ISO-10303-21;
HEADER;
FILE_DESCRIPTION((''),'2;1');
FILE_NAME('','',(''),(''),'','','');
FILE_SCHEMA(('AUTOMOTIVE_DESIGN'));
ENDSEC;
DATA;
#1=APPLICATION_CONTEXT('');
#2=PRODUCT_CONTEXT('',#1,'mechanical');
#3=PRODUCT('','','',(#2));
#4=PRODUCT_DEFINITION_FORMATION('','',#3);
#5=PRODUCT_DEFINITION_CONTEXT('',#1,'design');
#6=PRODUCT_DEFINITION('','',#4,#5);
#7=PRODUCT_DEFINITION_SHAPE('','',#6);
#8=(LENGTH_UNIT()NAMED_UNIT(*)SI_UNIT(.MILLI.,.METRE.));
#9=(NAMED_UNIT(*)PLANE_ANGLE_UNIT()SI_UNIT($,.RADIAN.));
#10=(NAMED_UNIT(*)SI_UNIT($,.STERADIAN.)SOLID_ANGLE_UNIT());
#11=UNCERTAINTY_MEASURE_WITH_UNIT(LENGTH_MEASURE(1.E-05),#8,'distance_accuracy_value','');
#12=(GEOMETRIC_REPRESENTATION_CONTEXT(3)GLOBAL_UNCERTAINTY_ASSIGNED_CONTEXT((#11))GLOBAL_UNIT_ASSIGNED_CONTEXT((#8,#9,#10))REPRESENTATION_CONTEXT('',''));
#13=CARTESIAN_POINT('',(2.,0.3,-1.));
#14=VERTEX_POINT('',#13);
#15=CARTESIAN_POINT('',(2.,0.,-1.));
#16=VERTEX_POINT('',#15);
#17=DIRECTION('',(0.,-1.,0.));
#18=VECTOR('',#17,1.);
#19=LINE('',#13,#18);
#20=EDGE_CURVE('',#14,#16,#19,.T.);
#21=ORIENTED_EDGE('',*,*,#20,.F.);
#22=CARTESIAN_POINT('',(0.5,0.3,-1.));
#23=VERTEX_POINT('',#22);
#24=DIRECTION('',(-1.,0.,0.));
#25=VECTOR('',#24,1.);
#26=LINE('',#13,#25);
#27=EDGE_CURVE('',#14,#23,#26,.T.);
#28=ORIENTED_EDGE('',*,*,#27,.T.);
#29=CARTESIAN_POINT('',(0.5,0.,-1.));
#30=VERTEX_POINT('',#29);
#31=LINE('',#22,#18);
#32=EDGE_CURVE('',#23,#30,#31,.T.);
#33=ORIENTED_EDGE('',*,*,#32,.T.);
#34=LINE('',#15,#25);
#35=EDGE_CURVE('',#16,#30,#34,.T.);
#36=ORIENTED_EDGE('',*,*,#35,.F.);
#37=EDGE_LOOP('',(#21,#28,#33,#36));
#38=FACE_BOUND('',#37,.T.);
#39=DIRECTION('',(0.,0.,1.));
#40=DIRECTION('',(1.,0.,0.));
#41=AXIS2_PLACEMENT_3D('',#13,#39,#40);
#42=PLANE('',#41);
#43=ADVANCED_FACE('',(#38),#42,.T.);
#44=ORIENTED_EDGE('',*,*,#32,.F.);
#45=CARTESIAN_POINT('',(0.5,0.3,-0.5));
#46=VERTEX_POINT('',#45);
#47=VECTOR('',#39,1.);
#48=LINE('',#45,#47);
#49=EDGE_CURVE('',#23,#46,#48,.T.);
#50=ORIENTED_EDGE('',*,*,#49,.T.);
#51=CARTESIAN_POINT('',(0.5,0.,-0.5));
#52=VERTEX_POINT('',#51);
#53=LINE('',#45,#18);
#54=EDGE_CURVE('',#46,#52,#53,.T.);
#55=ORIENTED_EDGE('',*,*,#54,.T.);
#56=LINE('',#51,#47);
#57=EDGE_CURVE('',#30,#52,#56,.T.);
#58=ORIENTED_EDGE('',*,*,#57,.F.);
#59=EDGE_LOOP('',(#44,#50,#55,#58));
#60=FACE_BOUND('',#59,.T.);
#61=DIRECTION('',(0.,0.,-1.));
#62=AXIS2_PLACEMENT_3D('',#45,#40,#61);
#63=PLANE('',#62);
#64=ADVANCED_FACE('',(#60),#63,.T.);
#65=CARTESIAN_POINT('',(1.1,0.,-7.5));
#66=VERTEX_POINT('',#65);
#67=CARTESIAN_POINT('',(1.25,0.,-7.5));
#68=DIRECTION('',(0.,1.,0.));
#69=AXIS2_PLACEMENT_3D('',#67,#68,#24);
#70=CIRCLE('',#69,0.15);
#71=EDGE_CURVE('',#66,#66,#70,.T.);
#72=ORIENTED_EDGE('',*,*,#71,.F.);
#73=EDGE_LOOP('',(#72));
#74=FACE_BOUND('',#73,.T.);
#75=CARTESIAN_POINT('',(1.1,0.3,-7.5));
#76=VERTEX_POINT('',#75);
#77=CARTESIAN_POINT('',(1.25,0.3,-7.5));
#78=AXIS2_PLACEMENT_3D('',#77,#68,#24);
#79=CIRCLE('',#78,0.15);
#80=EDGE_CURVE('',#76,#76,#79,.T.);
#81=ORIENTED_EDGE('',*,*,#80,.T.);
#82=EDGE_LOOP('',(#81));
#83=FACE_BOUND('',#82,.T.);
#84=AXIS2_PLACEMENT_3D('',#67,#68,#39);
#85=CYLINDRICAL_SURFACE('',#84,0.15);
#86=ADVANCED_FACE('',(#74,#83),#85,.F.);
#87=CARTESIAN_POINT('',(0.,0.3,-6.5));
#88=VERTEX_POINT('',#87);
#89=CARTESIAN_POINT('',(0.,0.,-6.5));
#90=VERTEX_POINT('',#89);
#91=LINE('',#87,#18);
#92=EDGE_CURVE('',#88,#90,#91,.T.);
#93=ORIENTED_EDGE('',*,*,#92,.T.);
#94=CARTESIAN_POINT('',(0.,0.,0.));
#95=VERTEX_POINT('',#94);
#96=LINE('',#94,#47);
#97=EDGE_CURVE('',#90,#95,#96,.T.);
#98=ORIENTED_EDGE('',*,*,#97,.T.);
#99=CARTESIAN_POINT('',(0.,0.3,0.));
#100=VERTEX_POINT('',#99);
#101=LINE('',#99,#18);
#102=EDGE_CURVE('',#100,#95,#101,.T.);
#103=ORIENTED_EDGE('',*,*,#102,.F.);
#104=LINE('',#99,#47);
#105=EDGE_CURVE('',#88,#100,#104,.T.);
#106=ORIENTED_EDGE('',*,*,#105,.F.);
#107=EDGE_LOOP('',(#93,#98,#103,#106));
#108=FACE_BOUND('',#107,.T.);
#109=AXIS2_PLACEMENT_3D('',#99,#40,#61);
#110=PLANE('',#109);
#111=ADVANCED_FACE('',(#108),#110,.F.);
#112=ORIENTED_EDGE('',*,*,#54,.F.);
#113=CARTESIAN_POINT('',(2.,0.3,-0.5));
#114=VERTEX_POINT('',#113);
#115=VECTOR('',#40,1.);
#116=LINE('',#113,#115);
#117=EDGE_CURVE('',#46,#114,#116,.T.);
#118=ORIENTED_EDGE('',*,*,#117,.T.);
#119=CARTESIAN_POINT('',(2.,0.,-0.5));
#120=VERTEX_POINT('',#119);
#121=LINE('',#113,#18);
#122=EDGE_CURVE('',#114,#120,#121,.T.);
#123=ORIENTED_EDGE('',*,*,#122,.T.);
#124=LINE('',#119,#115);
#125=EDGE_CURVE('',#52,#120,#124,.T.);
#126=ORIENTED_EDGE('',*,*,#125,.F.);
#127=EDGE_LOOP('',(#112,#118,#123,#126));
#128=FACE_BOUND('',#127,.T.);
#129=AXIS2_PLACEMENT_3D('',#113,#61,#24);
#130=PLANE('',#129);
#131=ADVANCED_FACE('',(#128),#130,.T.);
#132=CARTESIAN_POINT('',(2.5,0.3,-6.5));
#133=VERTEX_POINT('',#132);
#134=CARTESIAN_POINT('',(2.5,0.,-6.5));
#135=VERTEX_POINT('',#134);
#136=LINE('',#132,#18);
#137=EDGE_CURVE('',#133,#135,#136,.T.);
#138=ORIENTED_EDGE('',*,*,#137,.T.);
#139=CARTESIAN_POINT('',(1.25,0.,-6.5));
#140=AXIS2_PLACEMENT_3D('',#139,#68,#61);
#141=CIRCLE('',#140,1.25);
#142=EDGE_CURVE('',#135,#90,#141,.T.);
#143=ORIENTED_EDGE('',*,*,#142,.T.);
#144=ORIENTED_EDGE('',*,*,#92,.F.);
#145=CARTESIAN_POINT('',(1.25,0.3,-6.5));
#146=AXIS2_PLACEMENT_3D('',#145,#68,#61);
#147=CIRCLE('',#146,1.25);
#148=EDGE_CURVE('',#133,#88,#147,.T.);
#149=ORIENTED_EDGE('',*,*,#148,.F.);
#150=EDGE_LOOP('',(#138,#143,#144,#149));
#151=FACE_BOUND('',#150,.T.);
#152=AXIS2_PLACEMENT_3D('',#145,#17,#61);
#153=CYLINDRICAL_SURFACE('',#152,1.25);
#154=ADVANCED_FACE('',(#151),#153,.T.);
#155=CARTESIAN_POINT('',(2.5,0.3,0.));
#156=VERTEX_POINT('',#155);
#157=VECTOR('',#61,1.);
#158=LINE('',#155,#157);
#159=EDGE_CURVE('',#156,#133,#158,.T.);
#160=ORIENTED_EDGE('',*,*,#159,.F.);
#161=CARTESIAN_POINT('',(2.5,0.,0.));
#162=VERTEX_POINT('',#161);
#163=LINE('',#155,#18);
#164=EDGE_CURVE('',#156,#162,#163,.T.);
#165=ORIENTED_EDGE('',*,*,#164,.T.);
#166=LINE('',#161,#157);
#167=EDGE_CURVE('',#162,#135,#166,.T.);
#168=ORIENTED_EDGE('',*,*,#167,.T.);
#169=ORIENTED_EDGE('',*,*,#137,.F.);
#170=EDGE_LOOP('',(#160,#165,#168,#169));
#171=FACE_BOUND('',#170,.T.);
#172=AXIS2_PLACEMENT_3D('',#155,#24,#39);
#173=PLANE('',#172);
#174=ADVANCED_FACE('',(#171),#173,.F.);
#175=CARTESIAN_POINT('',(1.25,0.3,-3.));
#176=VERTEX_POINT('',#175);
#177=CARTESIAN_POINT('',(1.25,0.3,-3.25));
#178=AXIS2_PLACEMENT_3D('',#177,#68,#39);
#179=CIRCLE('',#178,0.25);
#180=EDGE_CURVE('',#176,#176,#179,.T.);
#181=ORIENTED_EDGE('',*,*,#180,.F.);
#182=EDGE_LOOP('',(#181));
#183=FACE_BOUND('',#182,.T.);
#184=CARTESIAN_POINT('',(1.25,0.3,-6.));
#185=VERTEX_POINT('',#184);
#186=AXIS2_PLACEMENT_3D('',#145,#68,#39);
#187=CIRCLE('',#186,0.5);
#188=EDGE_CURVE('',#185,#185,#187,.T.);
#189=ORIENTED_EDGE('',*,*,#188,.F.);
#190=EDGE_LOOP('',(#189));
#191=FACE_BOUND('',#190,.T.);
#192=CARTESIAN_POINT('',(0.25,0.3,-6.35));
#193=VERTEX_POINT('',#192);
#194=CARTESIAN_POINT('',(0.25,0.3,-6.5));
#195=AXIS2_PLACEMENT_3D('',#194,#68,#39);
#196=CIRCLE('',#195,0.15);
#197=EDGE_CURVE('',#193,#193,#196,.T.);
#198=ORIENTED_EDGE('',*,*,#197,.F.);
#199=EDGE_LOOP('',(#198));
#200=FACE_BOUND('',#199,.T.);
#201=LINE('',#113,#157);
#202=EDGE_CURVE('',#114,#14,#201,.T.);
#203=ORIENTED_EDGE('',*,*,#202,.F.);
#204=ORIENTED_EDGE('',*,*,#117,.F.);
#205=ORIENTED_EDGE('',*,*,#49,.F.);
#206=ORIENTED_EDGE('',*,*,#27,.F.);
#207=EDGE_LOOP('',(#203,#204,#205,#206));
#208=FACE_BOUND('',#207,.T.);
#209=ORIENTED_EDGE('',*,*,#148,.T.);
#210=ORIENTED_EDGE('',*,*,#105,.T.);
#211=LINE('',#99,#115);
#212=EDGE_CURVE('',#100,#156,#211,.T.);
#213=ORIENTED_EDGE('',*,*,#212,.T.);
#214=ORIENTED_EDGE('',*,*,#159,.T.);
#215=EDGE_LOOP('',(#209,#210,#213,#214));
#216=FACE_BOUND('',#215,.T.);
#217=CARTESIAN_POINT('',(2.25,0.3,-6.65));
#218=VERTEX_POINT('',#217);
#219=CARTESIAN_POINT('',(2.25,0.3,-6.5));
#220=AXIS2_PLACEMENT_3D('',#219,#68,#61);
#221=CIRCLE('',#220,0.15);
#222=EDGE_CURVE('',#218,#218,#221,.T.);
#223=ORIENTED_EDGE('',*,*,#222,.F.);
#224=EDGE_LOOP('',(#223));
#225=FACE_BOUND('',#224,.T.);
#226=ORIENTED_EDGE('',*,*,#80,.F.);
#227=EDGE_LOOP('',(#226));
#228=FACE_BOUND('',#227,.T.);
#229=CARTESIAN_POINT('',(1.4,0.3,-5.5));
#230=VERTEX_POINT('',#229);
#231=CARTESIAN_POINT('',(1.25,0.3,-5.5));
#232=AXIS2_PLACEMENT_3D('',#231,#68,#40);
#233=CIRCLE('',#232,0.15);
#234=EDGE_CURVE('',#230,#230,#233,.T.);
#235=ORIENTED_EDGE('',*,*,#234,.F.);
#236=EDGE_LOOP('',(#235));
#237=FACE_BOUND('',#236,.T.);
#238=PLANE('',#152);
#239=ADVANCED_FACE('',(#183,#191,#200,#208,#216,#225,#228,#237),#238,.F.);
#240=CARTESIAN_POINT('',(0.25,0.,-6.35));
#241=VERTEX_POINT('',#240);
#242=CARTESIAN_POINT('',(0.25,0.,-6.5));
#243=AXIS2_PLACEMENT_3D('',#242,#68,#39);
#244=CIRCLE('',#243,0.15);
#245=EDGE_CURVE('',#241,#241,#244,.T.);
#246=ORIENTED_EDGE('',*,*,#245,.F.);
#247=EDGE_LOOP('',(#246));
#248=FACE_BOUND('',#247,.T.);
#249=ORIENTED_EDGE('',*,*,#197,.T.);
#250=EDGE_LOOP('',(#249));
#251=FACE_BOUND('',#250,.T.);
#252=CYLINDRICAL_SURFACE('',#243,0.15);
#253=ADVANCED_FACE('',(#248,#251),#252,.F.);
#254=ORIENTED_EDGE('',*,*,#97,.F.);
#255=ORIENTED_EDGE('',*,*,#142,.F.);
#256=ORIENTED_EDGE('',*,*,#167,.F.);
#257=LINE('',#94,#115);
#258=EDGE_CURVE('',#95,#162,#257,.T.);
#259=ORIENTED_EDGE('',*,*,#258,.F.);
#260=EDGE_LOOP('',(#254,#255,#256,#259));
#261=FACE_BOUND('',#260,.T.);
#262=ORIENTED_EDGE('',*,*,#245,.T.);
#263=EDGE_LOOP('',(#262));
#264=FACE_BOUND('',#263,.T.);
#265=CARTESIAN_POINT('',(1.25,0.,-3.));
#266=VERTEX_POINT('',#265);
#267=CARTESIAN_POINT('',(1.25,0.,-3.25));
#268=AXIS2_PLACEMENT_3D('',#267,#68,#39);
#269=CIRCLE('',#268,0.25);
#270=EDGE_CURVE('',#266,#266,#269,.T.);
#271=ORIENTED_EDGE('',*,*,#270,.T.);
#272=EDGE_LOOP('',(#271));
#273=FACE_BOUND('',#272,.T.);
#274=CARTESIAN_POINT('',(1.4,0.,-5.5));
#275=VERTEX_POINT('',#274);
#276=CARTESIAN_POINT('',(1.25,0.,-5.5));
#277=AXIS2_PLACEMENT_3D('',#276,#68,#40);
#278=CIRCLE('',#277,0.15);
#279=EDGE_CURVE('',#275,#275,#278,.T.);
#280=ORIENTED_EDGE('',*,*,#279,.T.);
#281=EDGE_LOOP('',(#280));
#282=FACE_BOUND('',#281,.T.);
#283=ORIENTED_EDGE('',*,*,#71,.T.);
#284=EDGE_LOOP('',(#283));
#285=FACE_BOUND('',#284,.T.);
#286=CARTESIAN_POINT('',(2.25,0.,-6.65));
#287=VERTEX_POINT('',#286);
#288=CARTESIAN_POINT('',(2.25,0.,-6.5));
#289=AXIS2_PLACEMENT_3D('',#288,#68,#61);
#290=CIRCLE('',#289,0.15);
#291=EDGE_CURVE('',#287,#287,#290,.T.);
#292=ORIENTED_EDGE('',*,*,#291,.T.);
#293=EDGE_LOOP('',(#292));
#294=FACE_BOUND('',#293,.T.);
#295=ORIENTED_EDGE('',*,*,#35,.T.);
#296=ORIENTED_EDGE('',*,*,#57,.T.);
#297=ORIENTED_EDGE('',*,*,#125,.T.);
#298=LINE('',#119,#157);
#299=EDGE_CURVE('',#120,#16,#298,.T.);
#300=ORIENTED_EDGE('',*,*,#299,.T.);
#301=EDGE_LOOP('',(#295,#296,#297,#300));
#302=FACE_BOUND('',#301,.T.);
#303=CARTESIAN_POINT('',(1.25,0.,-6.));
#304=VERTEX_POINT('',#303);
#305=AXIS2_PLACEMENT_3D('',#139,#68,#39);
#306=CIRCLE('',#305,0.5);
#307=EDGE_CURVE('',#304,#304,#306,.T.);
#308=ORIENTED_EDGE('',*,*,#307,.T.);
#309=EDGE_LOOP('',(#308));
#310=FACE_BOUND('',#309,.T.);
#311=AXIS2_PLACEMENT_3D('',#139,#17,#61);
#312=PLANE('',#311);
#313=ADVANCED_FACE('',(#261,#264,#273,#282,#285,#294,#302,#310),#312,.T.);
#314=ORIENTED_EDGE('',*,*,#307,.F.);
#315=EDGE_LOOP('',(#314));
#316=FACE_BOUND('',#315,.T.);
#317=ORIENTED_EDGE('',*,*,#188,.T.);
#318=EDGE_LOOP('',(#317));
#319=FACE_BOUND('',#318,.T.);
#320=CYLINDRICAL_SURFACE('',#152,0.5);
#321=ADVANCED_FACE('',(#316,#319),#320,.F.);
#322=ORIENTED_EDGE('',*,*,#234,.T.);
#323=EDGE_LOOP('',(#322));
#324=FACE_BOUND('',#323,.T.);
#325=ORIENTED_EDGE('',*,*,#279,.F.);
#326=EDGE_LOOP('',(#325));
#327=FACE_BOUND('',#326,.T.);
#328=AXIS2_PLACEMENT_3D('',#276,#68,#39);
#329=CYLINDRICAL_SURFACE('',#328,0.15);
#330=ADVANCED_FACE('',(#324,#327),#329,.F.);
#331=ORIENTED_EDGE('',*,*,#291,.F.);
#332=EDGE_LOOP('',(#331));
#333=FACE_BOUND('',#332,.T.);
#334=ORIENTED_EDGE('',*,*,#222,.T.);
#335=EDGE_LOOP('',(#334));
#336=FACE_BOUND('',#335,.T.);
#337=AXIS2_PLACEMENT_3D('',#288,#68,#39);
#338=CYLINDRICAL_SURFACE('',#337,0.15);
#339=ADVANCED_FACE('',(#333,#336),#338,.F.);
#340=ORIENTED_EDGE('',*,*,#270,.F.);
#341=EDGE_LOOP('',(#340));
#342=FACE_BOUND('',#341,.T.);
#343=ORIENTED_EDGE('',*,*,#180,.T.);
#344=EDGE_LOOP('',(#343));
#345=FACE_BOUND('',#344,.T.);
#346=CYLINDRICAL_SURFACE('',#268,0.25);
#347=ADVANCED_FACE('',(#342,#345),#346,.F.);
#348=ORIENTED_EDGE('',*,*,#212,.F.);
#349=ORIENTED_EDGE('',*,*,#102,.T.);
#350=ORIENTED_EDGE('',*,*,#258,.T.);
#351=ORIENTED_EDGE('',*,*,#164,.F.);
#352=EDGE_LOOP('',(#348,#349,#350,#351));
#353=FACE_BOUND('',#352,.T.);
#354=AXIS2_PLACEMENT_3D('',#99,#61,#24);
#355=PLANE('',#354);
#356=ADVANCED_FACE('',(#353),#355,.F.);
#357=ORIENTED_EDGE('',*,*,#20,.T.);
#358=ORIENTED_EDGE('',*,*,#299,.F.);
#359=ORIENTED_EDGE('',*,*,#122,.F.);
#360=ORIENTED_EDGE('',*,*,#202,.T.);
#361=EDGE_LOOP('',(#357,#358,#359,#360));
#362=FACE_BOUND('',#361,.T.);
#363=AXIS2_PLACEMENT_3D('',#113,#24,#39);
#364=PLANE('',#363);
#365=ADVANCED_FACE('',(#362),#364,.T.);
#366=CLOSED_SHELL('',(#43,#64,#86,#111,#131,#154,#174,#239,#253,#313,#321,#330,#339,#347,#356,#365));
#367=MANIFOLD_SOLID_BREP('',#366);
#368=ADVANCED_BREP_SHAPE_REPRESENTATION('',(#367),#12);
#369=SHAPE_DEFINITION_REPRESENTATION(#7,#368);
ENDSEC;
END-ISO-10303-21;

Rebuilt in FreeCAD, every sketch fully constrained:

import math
import FreeCAD as App
import Part
import Sketcher
Q = App.Units.Quantity


def add_polygon(sketch, points):
    """Adds a closed chain of lines whose ends are joined by coincident constraints."""
    first, n = sketch.GeometryCount, len(points)
    for a, b in zip(points, points[1:] + points[:1]):
        sketch.addGeometry(Part.LineSegment(App.Vector(*a, 0), App.Vector(*b, 0)), False)
    for i in range(n):
        sketch.addConstraint(Sketcher.Constraint("Coincident", first + i, 2, first + (i + 1) % n, 1))

doc = App.newDocument("Part")
body = doc.addObject("PartDesign::Body", "Body")

# Sketch on XZ plane
sketch1 = doc.addObject("Sketcher::SketchObject", "Sketch")
body.addObject(sketch1)
sketch1.AttachmentSupport = (doc.XZ_Plane, [""])
sketch1.MapMode = "FlatFace"
sketch1.addGeometry(Part.LineSegment(App.Vector(0, 0, 0), App.Vector(2.5, 0, 0)), False)  # 0
sketch1.addGeometry(Part.LineSegment(App.Vector(2.5, 0, 0), App.Vector(2.5, -6.5, 0)), False)  # 1
sketch1.addGeometry(Part.ArcOfCircle(Part.Circle(App.Vector(1.25, -6.5, 0), App.Vector(0, 0, 1), 1.25), math.radians(180), math.radians(360)), False)  # 2
sketch1.addGeometry(Part.LineSegment(App.Vector(0, -6.5, 0), App.Vector(0, 0, 0)), False)  # 3
add_polygon(sketch1, [(2, -0.5), (0.5, -0.5), (0.5, -1), (2, -1)])  # lines 4-7
sketch1.addGeometry(Part.Circle(App.Vector(1.25, -6.5, 0), App.Vector(0, 0, 1), 0.5), False)  # 8
sketch1.addConstraint([
    Sketcher.Constraint("Coincident", 0, 2, 1, 1),
    Sketcher.Constraint("Tangent", 1, 2, 2, 2),
    Sketcher.Constraint("Tangent", 2, 1, 3, 1),
    Sketcher.Constraint("Coincident", 3, 2, 0, 1),
    Sketcher.Constraint("Horizontal", 0),
    Sketcher.Constraint("Vertical", 1),
    Sketcher.Constraint("Vertical", 3),
    Sketcher.Constraint("Horizontal", 4),
    Sketcher.Constraint("Vertical", 5),
    Sketcher.Constraint("Horizontal", 6),
    Sketcher.Constraint("Vertical", 7),
    Sketcher.Constraint("Coincident", 3, 2, -1, 1),
    Sketcher.Constraint("Coincident", 8, 3, 2, 3),
    Sketcher.Constraint("Diameter", 8, Q("1 mm")),
    Sketcher.Constraint("Radius", 2, Q("1.25 mm")),
    Sketcher.Constraint("DistanceX", 4, 2, 4, 1, Q("1.5 mm")),
    Sketcher.Constraint("DistanceY", 1, 2, 1, 1, Q("6.5 mm")),
    Sketcher.Constraint("DistanceY", 5, 2, 5, 1, Q("0.5 mm")),
    Sketcher.Constraint("DistanceY", 5, 2, -1, 1, Q("1 mm")),
    Sketcher.Constraint("DistanceX", -1, 1, 6, 2, Q("2 mm")),
])
pad1 = doc.addObject("PartDesign::Pad", "Pad")
body.addObject(pad1)
pad1.Profile = sketch1
pad1.Length = 0.3
pad1.Reversed = True

# Sketch on XZ plane
sketch2 = doc.addObject("Sketcher::SketchObject", "Sketch001")
body.addObject(sketch2)
sketch2.AttachmentSupport = (doc.XZ_Plane, [""])
sketch2.MapMode = "FlatFace"
sketch2.AttachmentOffset = App.Placement(App.Vector(0, 0, -0.3), App.Rotation())
sketch2.addGeometry(Part.Circle(App.Vector(0.25, -6.5, 0), App.Vector(0, 0, 1), 0.15), False)
sketch2.addConstraint([
    Sketcher.Constraint("Diameter", 0, Q("0.3 mm")),
    Sketcher.Constraint("DistanceY", 0, 3, -1, 1, Q("6.5 mm")),
    Sketcher.Constraint("DistanceX", -1, 1, 0, 3, Q("0.25 mm")),
])
pocket1 = doc.addObject("PartDesign::Pocket", "Pocket")
body.addObject(pocket1)
pocket1.Profile = sketch2
pocket1.Length = 0.3
pocket1.Reversed = True
doc.recompute()

datumline = doc.addObject("PartDesign::Line", "DatumLine")
body.addObject(datumline)
datumline.Placement = App.Placement(App.Vector(1.25, 0, -6.5), App.Rotation(App.Vector(0, 0, 1), App.Vector(0, 1, 0)))
polarpattern = doc.addObject("PartDesign::PolarPattern", "PolarPattern")
body.addObject(polarpattern)
polarpattern.Originals = [pocket1]
polarpattern.Axis = (datumline, [""])
polarpattern.Angle = 360
polarpattern.Occurrences = 4
body.Tip = polarpattern

# Sketch on XZ plane
sketch3 = doc.addObject("Sketcher::SketchObject", "Sketch002")
body.addObject(sketch3)
sketch3.AttachmentSupport = (doc.XZ_Plane, [""])
sketch3.MapMode = "FlatFace"
sketch3.AttachmentOffset = App.Placement(App.Vector(0, 0, -0.3), App.Rotation())
sketch3.addGeometry(Part.Circle(App.Vector(1.25, -3.25, 0), App.Vector(0, 0, 1), 0.25), False)
sketch3.addConstraint([
    Sketcher.Constraint("Diameter", 0, Q("0.5 mm")),
    Sketcher.Constraint("DistanceX", -1, 1, 0, 3, Q("1.25 mm")),
    Sketcher.Constraint("DistanceY", 0, 3, -1, 1, Q("3.25 mm")),
])
pocket2 = doc.addObject("PartDesign::Pocket", "Pocket001")
body.addObject(pocket2)
pocket2.Profile = sketch3
pocket2.Length = 0.3
pocket2.Reversed = True

doc.recompute()
